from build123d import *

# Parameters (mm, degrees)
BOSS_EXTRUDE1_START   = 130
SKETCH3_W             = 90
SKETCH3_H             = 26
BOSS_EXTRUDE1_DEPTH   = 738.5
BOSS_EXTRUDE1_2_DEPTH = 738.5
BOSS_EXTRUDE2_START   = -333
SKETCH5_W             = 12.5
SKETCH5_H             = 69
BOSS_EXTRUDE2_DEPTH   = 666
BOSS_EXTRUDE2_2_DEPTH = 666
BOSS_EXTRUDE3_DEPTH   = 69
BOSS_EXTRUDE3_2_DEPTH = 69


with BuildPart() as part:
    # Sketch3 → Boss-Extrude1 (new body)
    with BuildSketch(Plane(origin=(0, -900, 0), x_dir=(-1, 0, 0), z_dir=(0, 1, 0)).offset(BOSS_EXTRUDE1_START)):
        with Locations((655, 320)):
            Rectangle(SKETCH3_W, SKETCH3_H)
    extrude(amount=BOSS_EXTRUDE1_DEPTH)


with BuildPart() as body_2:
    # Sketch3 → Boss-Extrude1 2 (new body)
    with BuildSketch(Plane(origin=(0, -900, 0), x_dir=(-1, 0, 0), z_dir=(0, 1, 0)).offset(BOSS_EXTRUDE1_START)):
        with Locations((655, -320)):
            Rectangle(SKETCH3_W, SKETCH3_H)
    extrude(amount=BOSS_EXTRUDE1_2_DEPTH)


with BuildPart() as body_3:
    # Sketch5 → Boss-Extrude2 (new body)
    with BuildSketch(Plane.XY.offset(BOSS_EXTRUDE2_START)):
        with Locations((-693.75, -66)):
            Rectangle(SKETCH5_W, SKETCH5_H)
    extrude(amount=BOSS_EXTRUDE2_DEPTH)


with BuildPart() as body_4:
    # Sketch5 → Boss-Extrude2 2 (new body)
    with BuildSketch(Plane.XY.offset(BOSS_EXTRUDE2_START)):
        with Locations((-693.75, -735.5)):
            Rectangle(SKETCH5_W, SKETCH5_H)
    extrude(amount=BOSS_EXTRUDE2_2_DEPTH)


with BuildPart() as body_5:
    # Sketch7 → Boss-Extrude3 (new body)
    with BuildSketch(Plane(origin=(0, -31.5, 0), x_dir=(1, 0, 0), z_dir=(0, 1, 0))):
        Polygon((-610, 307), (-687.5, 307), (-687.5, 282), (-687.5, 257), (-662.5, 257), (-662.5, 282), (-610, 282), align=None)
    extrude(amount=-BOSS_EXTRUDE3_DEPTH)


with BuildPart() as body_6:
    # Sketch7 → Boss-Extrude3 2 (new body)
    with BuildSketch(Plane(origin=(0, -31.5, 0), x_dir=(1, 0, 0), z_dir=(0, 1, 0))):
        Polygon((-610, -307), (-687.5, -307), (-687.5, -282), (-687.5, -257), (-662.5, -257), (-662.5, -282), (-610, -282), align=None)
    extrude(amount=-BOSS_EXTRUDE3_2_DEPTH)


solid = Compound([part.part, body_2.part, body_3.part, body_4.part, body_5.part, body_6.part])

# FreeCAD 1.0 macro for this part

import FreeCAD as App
import Part
import Sketcher

V = App.Vector

doc = App.newDocument("Part")
body = doc.addObject("PartDesign::Body", "Body")

# Sketch on XZ plane
sketch1 = body.newObject("Sketcher::SketchObject", "Sketch")
sketch1.AttachmentSupport = (doc.getObject("XZ_Plane"), [""])
sketch1.MapMode = "FlatFace"
sketch1.AttachmentOffset = App.Placement(V(0, 0, 770), App.Rotation())
sketch1.addGeometry([
    Part.LineSegment(V(-610, 333, 0), V(-610, 307, 0)),
    Part.LineSegment(V(-610, 307, 0), V(-700, 307, 0)),
    Part.LineSegment(V(-700, 307, 0), V(-700, 333, 0)),
    Part.LineSegment(V(-700, 333, 0), V(-610, 333, 0)),
], False)
sketch1.addConstraint([
    Sketcher.Constraint("Coincident", 0, 2, 1, 1),
    Sketcher.Constraint("Coincident", 1, 2, 2, 1),
    Sketcher.Constraint("Coincident", 2, 2, 3, 1),
    Sketcher.Constraint("Coincident", 3, 2, 0, 1),
    Sketcher.Constraint("Vertical", 0),
    Sketcher.Constraint("Horizontal", 1),
    Sketcher.Constraint("Vertical", 2),
    Sketcher.Constraint("Horizontal", 3),
    Sketcher.Constraint("DistanceX", 1, 2, 1, 1, 90.0),
    Sketcher.Constraint("DistanceY", 0, 2, 0, 1, 26.0),
    Sketcher.Constraint("DistanceX", 0, 2, -1, 1, 610.0),
    Sketcher.Constraint("DistanceY", -1, 1, 0, 2, 307.0),
])
pad1 = body.newObject("PartDesign::Pad", "Pad")
pad1.Profile = sketch1
pad1.Length = 738.5
pad1.Reversed = True
body2 = doc.addObject("PartDesign::Body", "Body001")

# Sketch on XZ plane
sketch2 = body2.newObject("Sketcher::SketchObject", "Sketch001")
sketch2.AttachmentSupport = (doc.getObject("XZ_Plane001"), [""])
sketch2.MapMode = "FlatFace"
sketch2.AttachmentOffset = App.Placement(V(0, 0, 770), App.Rotation())
sketch2.addGeometry([
    Part.LineSegment(V(-610, -307, 0), V(-610, -333, 0)),
    Part.LineSegment(V(-610, -333, 0), V(-700, -333, 0)),
    Part.LineSegment(V(-700, -333, 0), V(-700, -307, 0)),
    Part.LineSegment(V(-700, -307, 0), V(-610, -307, 0)),
], False)
sketch2.addConstraint([
    Sketcher.Constraint("Coincident", 0, 2, 1, 1),
    Sketcher.Constraint("Coincident", 1, 2, 2, 1),
    Sketcher.Constraint("Coincident", 2, 2, 3, 1),
    Sketcher.Constraint("Coincident", 3, 2, 0, 1),
    Sketcher.Constraint("Vertical", 0),
    Sketcher.Constraint("Horizontal", 1),
    Sketcher.Constraint("Vertical", 2),
    Sketcher.Constraint("Horizontal", 3),
    Sketcher.Constraint("DistanceX", 1, 2, 1, 1, 90.0),
    Sketcher.Constraint("DistanceY", 0, 2, 0, 1, 26.0),
    Sketcher.Constraint("DistanceX", 0, 2, -1, 1, 610.0),
    Sketcher.Constraint("DistanceY", 0, 2, -1, 1, 333.0),
])
pad2 = body2.newObject("PartDesign::Pad", "Pad001")
pad2.Profile = sketch2
pad2.Length = 738.5
pad2.Reversed = True
body3 = doc.addObject("PartDesign::Body", "Body002")

# Sketch on XY plane
sketch3 = body3.newObject("Sketcher::SketchObject", "Sketch002")
sketch3.AttachmentSupport = (doc.getObject("XY_Plane002"), [""])
sketch3.MapMode = "FlatFace"
sketch3.AttachmentOffset = App.Placement(V(0, 0, -333), App.Rotation())
sketch3.addGeometry([
    Part.LineSegment(V(-700, -32, 0), V(-700, -100, 0)),
    Part.LineSegment(V(-700, -100, 0), V(-688, -100, 0)),
    Part.LineSegment(V(-688, -100, 0), V(-688, -32, 0)),
    Part.LineSegment(V(-688, -32, 0), V(-700, -32, 0)),
], False)
sketch3.addConstraint([
    Sketcher.Constraint("Coincident", 0, 2, 1, 1),
    Sketcher.Constraint("Coincident", 1, 2, 2, 1),
    Sketcher.Constraint("Coincident", 2, 2, 3, 1),
    Sketcher.Constraint("Coincident", 3, 2, 0, 1),
    Sketcher.Constraint("Vertical", 0),
    Sketcher.Constraint("Horizontal", 1),
    Sketcher.Constraint("Vertical", 2),
    Sketcher.Constraint("Horizontal", 3),
    Sketcher.Constraint("DistanceY", 0, 2, 0, 1, 69.0),
    Sketcher.Constraint("DistanceX", 1, 1, 1, 2, 12.5),
    Sketcher.Constraint("DistanceX", 0, 2, -1, 1, 700.0),
    Sketcher.Constraint("DistanceY", 0, 2, -1, 1, 100.5),
])
pad3 = body3.newObject("PartDesign::Pad", "Pad002")
pad3.Profile = sketch3
pad3.Length = 666
body4 = doc.addObject("PartDesign::Body", "Body003")

# Sketch on XY plane
sketch4 = body4.newObject("Sketcher::SketchObject", "Sketch003")
sketch4.AttachmentSupport = (doc.getObject("XY_Plane003"), [""])
sketch4.MapMode = "FlatFace"
sketch4.AttachmentOffset = App.Placement(V(0, 0, -333), App.Rotation())
sketch4.addGeometry([
    Part.LineSegment(V(-700, -701, 0), V(-700, -770, 0)),
    Part.LineSegment(V(-700, -770, 0), V(-688, -770, 0)),
    Part.LineSegment(V(-688, -770, 0), V(-688, -701, 0)),
    Part.LineSegment(V(-688, -701, 0), V(-700, -701, 0)),
], False)
sketch4.addConstraint([
    Sketcher.Constraint("Coincident", 0, 2, 1, 1),
    Sketcher.Constraint("Coincident", 1, 2, 2, 1),
    Sketcher.Constraint("Coincident", 2, 2, 3, 1),
    Sketcher.Constraint("Coincident", 3, 2, 0, 1),
    Sketcher.Constraint("Vertical", 0),
    Sketcher.Constraint("Horizontal", 1),
    Sketcher.Constraint("Vertical", 2),
    Sketcher.Constraint("Horizontal", 3),
    Sketcher.Constraint("DistanceY", 0, 2, 0, 1, 69.0),
    Sketcher.Constraint("DistanceX", 1, 1, 1, 2, 12.5),
    Sketcher.Constraint("DistanceX", 0, 2, -1, 1, 700.0),
    Sketcher.Constraint("DistanceY", 0, 2, -1, 1, 770.0),
])
pad4 = body4.newObject("PartDesign::Pad", "Pad003")
pad4.Profile = sketch4
pad4.Length = 666
body5 = doc.addObject("PartDesign::Body", "Body004")

# Sketch on XZ plane
sketch5 = body5.newObject("Sketcher::SketchObject", "Sketch004")
sketch5.AttachmentSupport = (doc.getObject("XZ_Plane004"), [""])
sketch5.MapMode = "FlatFace"
sketch5.AttachmentOffset = App.Placement(V(0, 0, 31.5), App.Rotation())
sketch5.addGeometry([
    Part.LineSegment(V(-610, -307, 0), V(-688, -307, 0)),  # 0
    Part.LineSegment(V(-688, -307, 0), V(-688, -257, 0)),  # 1
    Part.LineSegment(V(-688, -257, 0), V(-662, -257, 0)),  # 2
    Part.LineSegment(V(-662, -257, 0), V(-662, -282, 0)),  # 3
    Part.LineSegment(V(-662, -282, 0), V(-610, -282, 0)),  # 4
    Part.LineSegment(V(-610, -282, 0), V(-610, -307, 0)),  # 5
], False)
sketch5.addConstraint([
    Sketcher.Constraint("Coincident", 0, 2, 1, 1),
    Sketcher.Constraint("Coincident", 1, 2, 2, 1),
    Sketcher.Constraint("Coincident", 2, 2, 3, 1),
    Sketcher.Constraint("Coincident", 3, 2, 4, 1),
    Sketcher.Constraint("Coincident", 4, 2, 5, 1),
    Sketcher.Constraint("Coincident", 5, 2, 0, 1),
    Sketcher.Constraint("Horizontal", 0),
    Sketcher.Constraint("Vertical", 1),
    Sketcher.Constraint("Horizontal", 2),
    Sketcher.Constraint("Vertical", 3),
    Sketcher.Constraint("Horizontal", 4),
    Sketcher.Constraint("Vertical", 5),
    Sketcher.Constraint("Equal", 2, 3),
    Sketcher.Constraint("Equal", 3, 5),
    Sketcher.Constraint("DistanceX", 2, 1, 2, 2, 25.0),
    Sketcher.Constraint("DistanceX", 0, 2, 0, 1, 77.5),
    Sketcher.Constraint("DistanceY", 0, 2, -1, 1, 307.0),
    Sketcher.Constraint("DistanceX", 4, 2, -1, 1, 610.0),
])
pad5 = body5.newObject("PartDesign::Pad", "Pad004")
pad5.Profile = sketch5
pad5.Length = 69
body6 = doc.addObject("PartDesign::Body", "Body005")

# Sketch on XZ plane
sketch6 = body6.newObject("Sketcher::SketchObject", "Sketch005")
sketch6.AttachmentSupport = (doc.getObject("XZ_Plane005"), [""])
sketch6.MapMode = "FlatFace"
sketch6.AttachmentOffset = App.Placement(V(0, 0, 31.5), App.Rotation())
sketch6.addGeometry([
    Part.LineSegment(V(-688, 307, 0), V(-610, 307, 0)),  # 0
    Part.LineSegment(V(-610, 307, 0), V(-610, 282, 0)),  # 1
    Part.LineSegment(V(-610, 282, 0), V(-662, 282, 0)),  # 2
    Part.LineSegment(V(-662, 282, 0), V(-662, 257, 0)),  # 3
    Part.LineSegment(V(-662, 257, 0), V(-688, 257, 0)),  # 4
    Part.LineSegment(V(-688, 257, 0), V(-688, 307, 0)),  # 5
], False)
sketch6.addConstraint([
    Sketcher.Constraint("Coincident", 0, 2, 1, 1),
    Sketcher.Constraint("Coincident", 1, 2, 2, 1),
    Sketcher.Constraint("Coincident", 2, 2, 3, 1),
    Sketcher.Constraint("Coincident", 3, 2, 4, 1),
    Sketcher.Constraint("Coincident", 4, 2, 5, 1),
    Sketcher.Constraint("Coincident", 5, 2, 0, 1),
    Sketcher.Constraint("Horizontal", 0),
    Sketcher.Constraint("Vertical", 1),
    Sketcher.Constraint("Horizontal", 2),
    Sketcher.Constraint("Vertical", 3),
    Sketcher.Constraint("Horizontal", 4),
    Sketcher.Constraint("Vertical", 5),
    Sketcher.Constraint("Equal", 4, 1),
    Sketcher.Constraint("Equal", 1, 3),
    Sketcher.Constraint("DistanceX", 4, 2, 4, 1, 25.0),
    Sketcher.Constraint("DistanceX", 0, 1, 0, 2, 77.5),
    Sketcher.Constraint("DistanceX", 0, 2, -1, 1, 610.0),
    Sketcher.Constraint("DistanceY", -1, 1, 0, 2, 307.0),
])
pad6 = body6.newObject("PartDesign::Pad", "Pad005")
pad6.Profile = sketch6
pad6.Length = 69

doc.recompute()
